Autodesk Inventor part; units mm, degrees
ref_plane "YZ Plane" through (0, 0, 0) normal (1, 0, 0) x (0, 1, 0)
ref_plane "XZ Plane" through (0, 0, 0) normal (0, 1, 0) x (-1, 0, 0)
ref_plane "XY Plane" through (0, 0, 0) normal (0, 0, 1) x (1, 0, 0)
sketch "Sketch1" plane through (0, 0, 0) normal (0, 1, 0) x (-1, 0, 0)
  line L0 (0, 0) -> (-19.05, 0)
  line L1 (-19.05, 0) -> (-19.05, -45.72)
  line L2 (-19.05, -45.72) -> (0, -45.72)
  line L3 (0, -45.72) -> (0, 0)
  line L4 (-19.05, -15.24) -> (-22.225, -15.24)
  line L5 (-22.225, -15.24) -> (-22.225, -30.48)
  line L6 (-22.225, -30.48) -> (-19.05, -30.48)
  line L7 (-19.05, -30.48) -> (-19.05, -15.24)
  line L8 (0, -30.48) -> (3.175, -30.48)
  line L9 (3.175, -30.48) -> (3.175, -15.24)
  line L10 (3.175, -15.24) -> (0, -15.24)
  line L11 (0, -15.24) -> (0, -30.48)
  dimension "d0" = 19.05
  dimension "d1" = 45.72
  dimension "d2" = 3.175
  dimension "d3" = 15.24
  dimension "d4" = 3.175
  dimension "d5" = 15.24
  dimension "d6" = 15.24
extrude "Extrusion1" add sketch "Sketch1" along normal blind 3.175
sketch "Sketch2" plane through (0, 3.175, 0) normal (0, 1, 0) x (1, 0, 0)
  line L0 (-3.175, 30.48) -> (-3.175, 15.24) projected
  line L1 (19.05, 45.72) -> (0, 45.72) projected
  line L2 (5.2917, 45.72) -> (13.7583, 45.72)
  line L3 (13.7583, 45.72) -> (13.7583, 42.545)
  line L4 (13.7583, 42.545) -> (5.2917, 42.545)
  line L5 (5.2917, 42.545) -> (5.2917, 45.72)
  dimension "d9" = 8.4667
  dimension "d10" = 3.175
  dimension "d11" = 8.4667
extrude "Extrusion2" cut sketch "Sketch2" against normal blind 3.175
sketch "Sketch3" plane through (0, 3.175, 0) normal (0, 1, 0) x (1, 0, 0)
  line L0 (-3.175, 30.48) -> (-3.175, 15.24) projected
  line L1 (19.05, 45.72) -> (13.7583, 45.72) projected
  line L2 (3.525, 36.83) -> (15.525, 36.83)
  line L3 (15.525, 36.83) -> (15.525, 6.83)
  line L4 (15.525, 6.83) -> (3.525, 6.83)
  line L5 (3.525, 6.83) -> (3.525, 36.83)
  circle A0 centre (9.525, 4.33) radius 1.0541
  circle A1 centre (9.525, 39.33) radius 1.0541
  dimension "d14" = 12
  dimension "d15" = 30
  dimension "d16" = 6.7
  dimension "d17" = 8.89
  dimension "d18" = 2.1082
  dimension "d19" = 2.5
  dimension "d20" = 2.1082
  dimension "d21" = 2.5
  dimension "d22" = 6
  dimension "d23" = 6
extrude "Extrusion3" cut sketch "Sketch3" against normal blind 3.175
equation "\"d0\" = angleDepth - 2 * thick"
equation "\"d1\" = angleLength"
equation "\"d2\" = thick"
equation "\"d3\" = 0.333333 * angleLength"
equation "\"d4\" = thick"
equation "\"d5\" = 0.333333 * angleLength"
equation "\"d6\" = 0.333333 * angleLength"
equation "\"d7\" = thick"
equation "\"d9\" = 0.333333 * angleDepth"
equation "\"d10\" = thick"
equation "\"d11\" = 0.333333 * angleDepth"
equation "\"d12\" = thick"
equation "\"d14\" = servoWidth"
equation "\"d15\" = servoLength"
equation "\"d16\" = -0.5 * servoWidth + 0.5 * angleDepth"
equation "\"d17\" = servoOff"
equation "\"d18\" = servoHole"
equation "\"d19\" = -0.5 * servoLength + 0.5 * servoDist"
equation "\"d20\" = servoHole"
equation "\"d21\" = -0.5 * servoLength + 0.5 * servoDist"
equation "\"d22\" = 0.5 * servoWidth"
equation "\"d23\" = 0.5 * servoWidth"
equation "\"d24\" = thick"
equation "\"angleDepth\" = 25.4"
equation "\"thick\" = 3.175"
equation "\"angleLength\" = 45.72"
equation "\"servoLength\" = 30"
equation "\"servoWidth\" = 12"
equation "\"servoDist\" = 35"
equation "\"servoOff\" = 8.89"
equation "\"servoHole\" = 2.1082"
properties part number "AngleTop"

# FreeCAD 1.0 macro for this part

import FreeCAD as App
import Part
import Sketcher
Q = App.Units.Quantity

doc = App.newDocument("Part")
params = doc.addObject("Spreadsheet::Sheet", "Params")
for row, (alias, value) in enumerate([
    ("sketch1_height", "0.6 in"),
    ("sketch1_width", "0.75 in"),
    ("sketch1_width2", "0.125 in"),
    ("pad1_length", "0.125 in"),
    ("sketch2_height", "0.125 in"),
    ("pocket1_length", "0.125 in"),
    ("sketch3_diameter", "0.083 in"),
    ("pocket2_length", "0.125 in"),
], start=1):
    params.set(f"A{row}", alias)
    params.set(f"B{row}", "=" + value)
    params.setAlias(f"B{row}", alias)

body = doc.addObject("PartDesign::Body", "Body")

# Sketch on XZ plane
sketch1 = body.newObject("Sketcher::SketchObject", "Sketch")
sketch1.AttachmentSupport = (doc.getObject("XZ_Plane"), [""])
sketch1.MapMode = "FlatFace"
sketch1.addGeometry([
    Part.LineSegment(App.Vector(0, -15.24, 0), App.Vector(0, 0, 0)),  # 0
    Part.LineSegment(App.Vector(0, 0, 0), App.Vector(19.05, 0, 0)),  # 1
    Part.LineSegment(App.Vector(19.05, 0, 0), App.Vector(19.05, -15.24, 0)),  # 2
    Part.LineSegment(App.Vector(19.05, -15.24, 0), App.Vector(22.225, -15.24, 0)),  # 3
    Part.LineSegment(App.Vector(22.225, -15.24, 0), App.Vector(22.225, -30.48, 0)),  # 4
    Part.LineSegment(App.Vector(22.225, -30.48, 0), App.Vector(19.05, -30.48, 0)),  # 5
    Part.LineSegment(App.Vector(19.05, -30.48, 0), App.Vector(19.05, -45.72, 0)),  # 6
    Part.LineSegment(App.Vector(19.05, -45.72, 0), App.Vector(0, -45.72, 0)),  # 7
    Part.LineSegment(App.Vector(0, -45.72, 0), App.Vector(0, -30.48, 0)),  # 8
    Part.LineSegment(App.Vector(0, -30.48, 0), App.Vector(-3.175, -30.48, 0)),  # 9
    Part.LineSegment(App.Vector(-3.175, -30.48, 0), App.Vector(-3.175, -15.24, 0)),  # 10
    Part.LineSegment(App.Vector(-3.175, -15.24, 0), App.Vector(0, -15.24, 0)),  # 11
], False)
sketch1.addConstraint([
    Sketcher.Constraint("Coincident", 0, 2, 1, 1),
    Sketcher.Constraint("Coincident", 1, 2, 2, 1),
    Sketcher.Constraint("Coincident", 2, 2, 3, 1),
    Sketcher.Constraint("Coincident", 3, 2, 4, 1),
    Sketcher.Constraint("Coincident", 4, 2, 5, 1),
    Sketcher.Constraint("Coincident", 5, 2, 6, 1),
    Sketcher.Constraint("Coincident", 6, 2, 7, 1),
    Sketcher.Constraint("Coincident", 7, 2, 8, 1),
    Sketcher.Constraint("Coincident", 8, 2, 9, 1),
    Sketcher.Constraint("Coincident", 9, 2, 10, 1),
    Sketcher.Constraint("Coincident", 10, 2, 11, 1),
    Sketcher.Constraint("Coincident", 11, 2, 0, 1),
    Sketcher.Constraint("Vertical", 0),
    Sketcher.Constraint("Horizontal", 1),
    Sketcher.Constraint("Vertical", 2),
    Sketcher.Constraint("Horizontal", 3),
    Sketcher.Constraint("Vertical", 4),
    Sketcher.Constraint("Horizontal", 5),
    Sketcher.Constraint("Vertical", 6),
    Sketcher.Constraint("Horizontal", 7),
    Sketcher.Constraint("Vertical", 8),
    Sketcher.Constraint("Horizontal", 9),
    Sketcher.Constraint("Vertical", 10),
    Sketcher.Constraint("Horizontal", 11),
    Sketcher.Constraint("Coincident", 0, 2, -1, 1),
    Sketcher.Constraint("PointOnObject", 7, 2, -2),
    Sketcher.Constraint("Horizontal", 5, 2, 8, 2),
    Sketcher.Constraint("Horizontal", 3, 2, 10, 2),
    Sketcher.Constraint("Vertical", 2, 2, 5, 2),
    Sketcher.Constraint("Equal", 5, 9),
    Sketcher.Constraint("Equal", 2, 4),
    Sketcher.Constraint("Equal", 4, 6),
    Sketcher.Constraint("DistanceY", 0, 1, 0, 2, Q("0.6 in")),
    Sketcher.Constraint("DistanceX", 1, 1, 1, 2, Q("0.75 in")),
    Sketcher.Constraint("DistanceX", 3, 1, 3, 2, Q("0.125 in")),
])
sketch1.setExpression("Constraints[32]", "Params.sketch1_height")
sketch1.setExpression("Constraints[33]", "Params.sketch1_width")
sketch1.setExpression("Constraints[34]", "Params.sketch1_width2")
pad1 = body.newObject("PartDesign::Pad", "Pad")
pad1.Profile = sketch1
pad1.setExpression("Length", "Params.pad1_length")
pad1.Reversed = True

# Sketch on XZ plane
sketch2 = body.newObject("Sketcher::SketchObject", "Sketch001")
sketch2.AttachmentSupport = (doc.getObject("XZ_Plane"), [""])
sketch2.MapMode = "FlatFace"
sketch2.AttachmentOffset = App.Placement(App.Vector(0, 0, -0.125 * 25.4), App.Rotation())
sketch2.addGeometry([
    Part.LineSegment(App.Vector(13.7583, -42.545, 0), App.Vector(13.7583, -45.72, 0)),
    Part.LineSegment(App.Vector(13.7583, -45.72, 0), App.Vector(5.2917, -45.72, 0)),
    Part.LineSegment(App.Vector(5.2917, -45.72, 0), App.Vector(5.2917, -42.545, 0)),
    Part.LineSegment(App.Vector(5.2917, -42.545, 0), App.Vector(13.7583, -42.545, 0)),
], False)
sketch2.addConstraint([
    Sketcher.Constraint("Coincident", 0, 2, 1, 1),
    Sketcher.Constraint("Coincident", 1, 2, 2, 1),
    Sketcher.Constraint("Coincident", 2, 2, 3, 1),
    Sketcher.Constraint("Coincident", 3, 2, 0, 1),
    Sketcher.Constraint("Vertical", 0),
    Sketcher.Constraint("Horizontal", 1),
    Sketcher.Constraint("Vertical", 2),
    Sketcher.Constraint("Horizontal", 3),
    Sketcher.Constraint("DistanceY", 0, 2, 0, 1, Q("0.125 in")),
    Sketcher.Constraint("DistanceX", 1, 2, 1, 1, 8.4666),
    Sketcher.Constraint("DistanceY", 0, 2, -1, 1, Q("1.8 in")),
    Sketcher.Constraint("DistanceX", -1, 1, 0, 2, 13.7583),
])
sketch2.setExpression("Constraints[8]", "Params.sketch2_height")
pocket1 = body.newObject("PartDesign::Pocket", "Pocket")
pocket1.Profile = sketch2
pocket1.setExpression("Length", "Params.pocket1_length")
pocket1.Reversed = True

# Sketch on XZ plane
sketch3 = body.newObject("Sketcher::SketchObject", "Sketch002")
sketch3.AttachmentSupport = (doc.getObject("XZ_Plane"), [""])
sketch3.MapMode = "FlatFace"
sketch3.AttachmentOffset = App.Placement(App.Vector(0, 0, -0.125 * 25.4), App.Rotation())
sketch3.addGeometry([
    Part.LineSegment(App.Vector(15.525, -36.83, 0), App.Vector(3.525, -36.83, 0)),  # 0
    Part.LineSegment(App.Vector(3.525, -36.83, 0), App.Vector(3.525, -6.83, 0)),  # 1
    Part.LineSegment(App.Vector(3.525, -6.83, 0), App.Vector(15.525, -6.83, 0)),  # 2
    Part.LineSegment(App.Vector(15.525, -6.83, 0), App.Vector(15.525, -36.83, 0)),  # 3
    Part.Circle(App.Vector(9.525, -4.33, 0), App.Vector(0, 0, 1), 1.0541),  # 4
    Part.Circle(App.Vector(9.525, -39.33, 0), App.Vector(0, 0, 1), 1.0541),  # 5
], False)
sketch3.addConstraint([
    Sketcher.Constraint("Coincident", 0, 2, 1, 1),
    Sketcher.Constraint("Coincident", 1, 2, 2, 1),
    Sketcher.Constraint("Coincident", 2, 2, 3, 1),
    Sketcher.Constraint("Coincident", 3, 2, 0, 1),
    Sketcher.Constraint("Horizontal", 0),
    Sketcher.Constraint("Vertical", 1),
    Sketcher.Constraint("Horizontal", 2),
    Sketcher.Constraint("Vertical", 3),
    Sketcher.Constraint("Equal", 4, 5),
    Sketcher.Constraint("Vertical", 4, 3, 5, 3),
    Sketcher.Constraint("Diameter", 4, Q("0.083 in")),
    Sketcher.Constraint("DistanceY", 1, 1, 1, 2, Q("1.1811 in")),
    Sketcher.Constraint("DistanceX", 0, 2, 0, 1, 12.0),
    Sketcher.Constraint("DistanceY", 0, 2, -1, 1, Q("1.45 in")),
    Sketcher.Constraint("DistanceX", 0, 2, 5, 3, 6.0),
    Sketcher.Constraint("DistanceY", 5, 3, 0, 2, 2.5),
    Sketcher.Constraint("DistanceY", 1, 2, 4, 3, 2.5),
    Sketcher.Constraint("DistanceX", -1, 1, 4, 3, Q("0.375 in")),
])
sketch3.setExpression("Constraints[10]", "Params.sketch3_diameter")
pocket2 = body.newObject("PartDesign::Pocket", "Pocket001")
pocket2.Profile = sketch3
pocket2.setExpression("Length", "Params.pocket2_length")
pocket2.Reversed = True

doc.recompute()
